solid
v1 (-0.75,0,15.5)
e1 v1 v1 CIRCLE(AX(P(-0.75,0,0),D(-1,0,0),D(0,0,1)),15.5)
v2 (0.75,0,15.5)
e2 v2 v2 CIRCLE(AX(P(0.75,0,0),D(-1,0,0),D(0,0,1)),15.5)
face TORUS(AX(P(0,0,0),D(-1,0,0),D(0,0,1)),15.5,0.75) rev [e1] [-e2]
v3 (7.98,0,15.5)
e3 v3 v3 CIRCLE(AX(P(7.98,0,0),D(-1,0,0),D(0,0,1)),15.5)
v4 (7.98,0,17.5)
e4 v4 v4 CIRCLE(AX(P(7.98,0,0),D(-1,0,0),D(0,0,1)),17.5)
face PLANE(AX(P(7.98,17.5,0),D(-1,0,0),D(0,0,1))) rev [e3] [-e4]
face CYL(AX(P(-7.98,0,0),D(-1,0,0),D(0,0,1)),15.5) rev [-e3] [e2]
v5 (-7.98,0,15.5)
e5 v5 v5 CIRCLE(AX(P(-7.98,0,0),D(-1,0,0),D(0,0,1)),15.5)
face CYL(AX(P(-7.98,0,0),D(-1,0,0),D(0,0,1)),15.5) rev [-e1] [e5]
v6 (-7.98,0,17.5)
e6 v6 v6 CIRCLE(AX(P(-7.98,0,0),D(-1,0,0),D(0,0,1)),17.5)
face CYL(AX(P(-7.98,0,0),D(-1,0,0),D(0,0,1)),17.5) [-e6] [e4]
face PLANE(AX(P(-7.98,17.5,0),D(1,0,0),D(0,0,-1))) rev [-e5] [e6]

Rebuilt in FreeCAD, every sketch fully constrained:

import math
import FreeCAD as App
import Part
import Sketcher
from FreeCAD import Vector

doc = App.newDocument("Part")
body = doc.addObject("PartDesign::Body", "Body")

sketch1 = body.newObject("Sketcher::SketchObject", "Sketch")
sketch1.AttachmentSupport = (doc.getObject("XY_Plane"), [""])
sketch1.MapMode = "FlatFace"
sketch1.addGeometry([
    Part.LineSegment(Vector(0.75, 15.5, 0), Vector(7.98, 15.5, 0)),
    Part.LineSegment(Vector(7.98, 15.5, 0), Vector(7.98, 17.5, 0)),
    Part.LineSegment(Vector(7.98, 17.5, 0), Vector(-7.98, 17.5, 0)),
    Part.LineSegment(Vector(-7.98, 17.5, 0), Vector(-7.98, 15.5, 0)),
    Part.LineSegment(Vector(-7.98, 15.5, 0), Vector(-0.75, 15.5, 0)),
    Part.ArcOfCircle(Part.Circle(Vector(0, 15.5, 0), Vector(0, 0, 1), 0.75), math.radians(0), math.radians(180)),
], False)
sketch1.addConstraint([
    Sketcher.Constraint("Coincident", 0, 2, 1, 1),
    Sketcher.Constraint("Coincident", 1, 2, 2, 1),
    Sketcher.Constraint("Coincident", 2, 2, 3, 1),
    Sketcher.Constraint("Coincident", 3, 2, 4, 1),
    Sketcher.Constraint("Coincident", 4, 2, 5, 2),
    Sketcher.Constraint("Coincident", 5, 1, 0, 1),
    Sketcher.Constraint("Horizontal", 0),
    Sketcher.Constraint("Vertical", 1),
    Sketcher.Constraint("Horizontal", 2),
    Sketcher.Constraint("Vertical", 3),
    Sketcher.Constraint("Horizontal", 4),
    Sketcher.Constraint("Symmetric", 0, 2, 3, 2, -2),
    Sketcher.Constraint("PointOnObject", 5, 3, -2),
    Sketcher.Constraint("Horizontal", 5, 3, 0, 2),
    Sketcher.Constraint("DistanceY", 1, 1, 1, 2, 2.0),
    Sketcher.Constraint("Radius", 5, 0.75),
    Sketcher.Constraint("DistanceX", 0, 1, 0, 2, 7.23),
    Sketcher.Constraint("DistanceY", -1, 1, 5, 3, 15.5),
])
revolution = body.newObject("PartDesign::Revolution", "Revolution")
revolution.Profile = sketch1
revolution.ReferenceAxis = (sketch1, ["H_Axis"])
revolution.Angle = 360

doc.recompute()
